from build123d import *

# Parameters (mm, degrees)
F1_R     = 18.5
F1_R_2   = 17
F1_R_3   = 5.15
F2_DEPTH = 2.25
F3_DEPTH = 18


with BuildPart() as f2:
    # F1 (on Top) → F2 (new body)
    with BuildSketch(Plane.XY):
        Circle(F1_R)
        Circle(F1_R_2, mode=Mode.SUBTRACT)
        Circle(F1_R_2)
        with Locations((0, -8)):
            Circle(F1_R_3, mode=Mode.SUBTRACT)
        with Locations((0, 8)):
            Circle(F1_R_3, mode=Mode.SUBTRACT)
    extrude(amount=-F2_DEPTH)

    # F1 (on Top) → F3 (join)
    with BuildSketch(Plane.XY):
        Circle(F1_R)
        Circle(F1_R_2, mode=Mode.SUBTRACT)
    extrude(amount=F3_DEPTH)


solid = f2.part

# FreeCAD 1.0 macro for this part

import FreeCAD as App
import Part
import Sketcher

V = App.Vector
Q = App.Units.Quantity

doc = App.newDocument("Part")
body = doc.addObject("PartDesign::Body", "Body")

# Sketch on XY plane
sketch1 = body.newObject("Sketcher::SketchObject", "Sketch")
sketch1.AttachmentSupport = (doc.getObject("XY_Plane"), [""])
sketch1.MapMode = "FlatFace"
sketch1.addGeometry(Part.Circle(V(0, 0, 0), V(0, 0, 1), 18), False)
sketch1.addGeometry(Part.Circle(V(0, -8, 0), V(0, 0, 1), 5), False)
sketch1.addGeometry(Part.Circle(V(0, 8, 0), V(0, 0, 1), 5), False)
sketch1.addConstraint(Sketcher.Constraint("Coincident", 0, 3, -1, 1))
sketch1.addConstraint(Sketcher.Constraint("Equal", 1, 2))
sketch1.addConstraint(Sketcher.Constraint("Symmetric", 1, 3, 2, 3, -1, 1))
sketch1.addConstraint(Sketcher.Constraint("PointOnObject", 1, 3, -2))
sketch1.addConstraint(Sketcher.Constraint("Diameter", 0, Q("37 mm")))
sketch1.addConstraint(Sketcher.Constraint("Diameter", 1, Q("10.3 mm")))
sketch1.addConstraint(Sketcher.Constraint("DistanceY", 1, 3, -1, 1, Q("8 mm")))
pad1 = body.newObject("PartDesign::Pad", "Pad")
pad1.Profile = sketch1
pad1.Length = 2.25
pad1.Reversed = True

# Sketch on XY plane
sketch2 = body.newObject("Sketcher::SketchObject", "Sketch001")
sketch2.AttachmentSupport = (doc.getObject("XY_Plane"), [""])
sketch2.MapMode = "FlatFace"
sketch2.addGeometry(Part.Circle(V(0, 0, 0), V(0, 0, 1), 18), False)
sketch2.addGeometry(Part.Circle(V(0, 0, 0), V(0, 0, 1), 17), False)
sketch2.addConstraint(Sketcher.Constraint("Coincident", 0, 3, -1, 1))
sketch2.addConstraint(Sketcher.Constraint("Coincident", 1, 3, -1, 1))
sketch2.addConstraint(Sketcher.Constraint("Diameter", 0, Q("37 mm")))
sketch2.addConstraint(Sketcher.Constraint("Diameter", 1, Q("34 mm")))
pad2 = body.newObject("PartDesign::Pad", "Pad001")
pad2.Profile = sketch2
pad2.Length = 18

doc.recompute()
